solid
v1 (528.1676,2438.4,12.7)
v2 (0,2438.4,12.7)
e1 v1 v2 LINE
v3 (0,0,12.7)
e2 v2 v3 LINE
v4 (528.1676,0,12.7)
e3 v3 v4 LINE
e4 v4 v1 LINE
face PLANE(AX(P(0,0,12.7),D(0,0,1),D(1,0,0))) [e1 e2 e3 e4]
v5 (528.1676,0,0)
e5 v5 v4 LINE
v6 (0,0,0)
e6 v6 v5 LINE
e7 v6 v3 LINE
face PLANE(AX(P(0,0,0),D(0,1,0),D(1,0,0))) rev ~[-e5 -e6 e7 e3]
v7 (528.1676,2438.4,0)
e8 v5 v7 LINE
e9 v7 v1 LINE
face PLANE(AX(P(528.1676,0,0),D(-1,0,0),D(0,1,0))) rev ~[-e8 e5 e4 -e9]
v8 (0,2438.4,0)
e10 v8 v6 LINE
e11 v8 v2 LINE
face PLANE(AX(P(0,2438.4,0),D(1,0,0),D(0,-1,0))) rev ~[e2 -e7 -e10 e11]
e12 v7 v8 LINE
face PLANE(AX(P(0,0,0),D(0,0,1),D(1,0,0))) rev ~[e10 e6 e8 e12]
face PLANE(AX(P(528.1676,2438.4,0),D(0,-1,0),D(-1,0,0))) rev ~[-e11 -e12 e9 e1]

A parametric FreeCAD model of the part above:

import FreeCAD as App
import Part
import Sketcher
from FreeCAD import Vector
Q = App.Units.Quantity

doc = App.newDocument("Part")
body = doc.addObject("PartDesign::Body", "Body")

# Sketch on XY plane
sketch1 = body.newObject("Sketcher::SketchObject", "Sketch")
sketch1.AttachmentSupport = (doc.getObject("XY_Plane"), [""])
sketch1.MapMode = "FlatFace"
sketch1.addGeometry(Part.LineSegment(Vector(0, 2438, 0), Vector(0, 0, 0)), False)
sketch1.addGeometry(Part.LineSegment(Vector(0, 0, 0), Vector(528, 0, 0)), False)
sketch1.addGeometry(Part.LineSegment(Vector(528, 0, 0), Vector(528, 2438, 0)), False)
sketch1.addGeometry(Part.LineSegment(Vector(528, 2438, 0), Vector(0, 2438, 0)), False)
sketch1.addConstraint(Sketcher.Constraint("Coincident", 0, 2, 1, 1))
sketch1.addConstraint(Sketcher.Constraint("Coincident", 1, 2, 2, 1))
sketch1.addConstraint(Sketcher.Constraint("Coincident", 2, 2, 3, 1))
sketch1.addConstraint(Sketcher.Constraint("Coincident", 3, 2, 0, 1))
sketch1.addConstraint(Sketcher.Constraint("Vertical", 0))
sketch1.addConstraint(Sketcher.Constraint("Horizontal", 1))
sketch1.addConstraint(Sketcher.Constraint("Vertical", 2))
sketch1.addConstraint(Sketcher.Constraint("Horizontal", 3))
sketch1.addConstraint(Sketcher.Constraint("Coincident", 0, 2, -1, 1))
sketch1.addConstraint(Sketcher.Constraint("DistanceY", 0, 2, 0, 1, Q("96 in")))
sketch1.addConstraint(Sketcher.Constraint("DistanceX", 1, 1, 1, 2, Q("20.794 in")))
pad1 = body.newObject("PartDesign::Pad", "Pad")
pad1.Profile = sketch1
pad1.Length = Q("0.5 in")

doc.recompute()
